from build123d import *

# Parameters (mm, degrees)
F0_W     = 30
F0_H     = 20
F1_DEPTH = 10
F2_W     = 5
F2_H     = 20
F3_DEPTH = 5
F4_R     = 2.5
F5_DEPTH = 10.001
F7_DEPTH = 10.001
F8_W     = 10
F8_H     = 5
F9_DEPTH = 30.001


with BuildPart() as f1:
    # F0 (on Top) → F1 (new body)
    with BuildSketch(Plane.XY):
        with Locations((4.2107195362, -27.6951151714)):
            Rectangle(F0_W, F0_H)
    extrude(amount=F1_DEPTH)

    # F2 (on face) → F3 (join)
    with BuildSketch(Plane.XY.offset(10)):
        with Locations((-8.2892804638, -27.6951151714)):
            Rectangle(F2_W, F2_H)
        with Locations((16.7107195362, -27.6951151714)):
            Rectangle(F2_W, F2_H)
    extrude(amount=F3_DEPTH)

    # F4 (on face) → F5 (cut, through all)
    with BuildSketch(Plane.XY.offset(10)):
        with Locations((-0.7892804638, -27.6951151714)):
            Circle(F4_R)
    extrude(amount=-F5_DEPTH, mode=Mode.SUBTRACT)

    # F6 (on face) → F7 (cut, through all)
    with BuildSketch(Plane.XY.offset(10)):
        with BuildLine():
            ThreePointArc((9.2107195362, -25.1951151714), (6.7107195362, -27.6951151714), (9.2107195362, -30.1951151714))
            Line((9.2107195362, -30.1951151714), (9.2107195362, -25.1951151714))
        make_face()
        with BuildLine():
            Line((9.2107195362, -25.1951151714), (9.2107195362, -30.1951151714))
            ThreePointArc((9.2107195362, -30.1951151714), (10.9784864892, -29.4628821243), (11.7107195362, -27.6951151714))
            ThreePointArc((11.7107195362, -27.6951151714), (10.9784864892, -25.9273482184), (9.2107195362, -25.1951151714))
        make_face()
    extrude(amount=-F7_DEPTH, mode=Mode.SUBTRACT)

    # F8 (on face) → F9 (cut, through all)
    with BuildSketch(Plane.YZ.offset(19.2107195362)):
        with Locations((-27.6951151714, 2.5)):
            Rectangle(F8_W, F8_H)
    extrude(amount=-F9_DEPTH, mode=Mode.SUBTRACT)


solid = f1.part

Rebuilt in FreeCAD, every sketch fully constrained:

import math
import FreeCAD as App
import Part
import Sketcher

V = App.Vector

doc = App.newDocument("Part")
body = doc.addObject("PartDesign::Body", "Body")

# Sketch on XY plane
sketch1 = body.newObject("Sketcher::SketchObject", "Sketch")
sketch1.AttachmentSupport = (doc.getObject("XY_Plane"), [""])
sketch1.MapMode = "FlatFace"
sketch1.addGeometry(Part.LineSegment(V(-11, -18, 0), V(-11, -38, 0)), False)
sketch1.addGeometry(Part.LineSegment(V(-11, -38, 0), V(19, -38, 0)), False)
sketch1.addGeometry(Part.LineSegment(V(19, -38, 0), V(19, -18, 0)), False)
sketch1.addGeometry(Part.LineSegment(V(19, -18, 0), V(-11, -18, 0)), False)
sketch1.addConstraint(Sketcher.Constraint("Coincident", 0, 2, 1, 1))
sketch1.addConstraint(Sketcher.Constraint("Coincident", 1, 2, 2, 1))
sketch1.addConstraint(Sketcher.Constraint("Coincident", 2, 2, 3, 1))
sketch1.addConstraint(Sketcher.Constraint("Coincident", 3, 2, 0, 1))
sketch1.addConstraint(Sketcher.Constraint("Vertical", 0))
sketch1.addConstraint(Sketcher.Constraint("Horizontal", 1))
sketch1.addConstraint(Sketcher.Constraint("Vertical", 2))
sketch1.addConstraint(Sketcher.Constraint("Horizontal", 3))
sketch1.addConstraint(Sketcher.Constraint("DistanceX", 1, 1, 1, 2, 30.0))
sketch1.addConstraint(Sketcher.Constraint("DistanceY", 0, 2, 0, 1, 20.0))
sketch1.addConstraint(Sketcher.Constraint("DistanceX", 0, 2, -1, 1, 10.78928))
sketch1.addConstraint(Sketcher.Constraint("DistanceY", 0, 2, -1, 1, 37.695115))
pad1 = body.newObject("PartDesign::Pad", "Pad")
pad1.Profile = sketch1
pad1.Length = 10

# Sketch on XY plane
sketch2 = body.newObject("Sketcher::SketchObject", "Sketch001")
sketch2.AttachmentSupport = (doc.getObject("XY_Plane"), [""])
sketch2.MapMode = "FlatFace"
sketch2.AttachmentOffset = App.Placement(V(0, 0, 10), App.Rotation())
sketch2.addGeometry(Part.LineSegment(V(-11, -18, 0), V(-11, -38, 0)), False)
sketch2.addGeometry(Part.LineSegment(V(-11, -38, 0), V(-6, -38, 0)), False)
sketch2.addGeometry(Part.LineSegment(V(-6, -38, 0), V(-6, -18, 0)), False)
sketch2.addGeometry(Part.LineSegment(V(-6, -18, 0), V(-11, -18, 0)), False)
sketch2.addGeometry(Part.LineSegment(V(14, -18, 0), V(14, -38, 0)), False)
sketch2.addGeometry(Part.LineSegment(V(14, -38, 0), V(19, -38, 0)), False)
sketch2.addGeometry(Part.LineSegment(V(19, -38, 0), V(19, -18, 0)), False)
sketch2.addGeometry(Part.LineSegment(V(19, -18, 0), V(14, -18, 0)), False)
sketch2.addConstraint(Sketcher.Constraint("Coincident", 0, 2, 1, 1))
sketch2.addConstraint(Sketcher.Constraint("Coincident", 1, 2, 2, 1))
sketch2.addConstraint(Sketcher.Constraint("Coincident", 2, 2, 3, 1))
sketch2.addConstraint(Sketcher.Constraint("Coincident", 3, 2, 0, 1))
sketch2.addConstraint(Sketcher.Constraint("Coincident", 4, 2, 5, 1))
sketch2.addConstraint(Sketcher.Constraint("Coincident", 5, 2, 6, 1))
sketch2.addConstraint(Sketcher.Constraint("Coincident", 6, 2, 7, 1))
sketch2.addConstraint(Sketcher.Constraint("Coincident", 7, 2, 4, 1))
sketch2.addConstraint(Sketcher.Constraint("Vertical", 0))
sketch2.addConstraint(Sketcher.Constraint("Horizontal", 1))
sketch2.addConstraint(Sketcher.Constraint("Vertical", 2))
sketch2.addConstraint(Sketcher.Constraint("Horizontal", 3))
sketch2.addConstraint(Sketcher.Constraint("Vertical", 4))
sketch2.addConstraint(Sketcher.Constraint("Horizontal", 5))
sketch2.addConstraint(Sketcher.Constraint("Vertical", 6))
sketch2.addConstraint(Sketcher.Constraint("Horizontal", 7))
sketch2.addConstraint(Sketcher.Constraint("Horizontal", 1, 2, 4, 2))
sketch2.addConstraint(Sketcher.Constraint("Horizontal", 3, 2, 6, 2))
sketch2.addConstraint(Sketcher.Constraint("Equal", 3, 5))
sketch2.addConstraint(Sketcher.Constraint("DistanceX", 1, 1, 1, 2, 5.0))
sketch2.addConstraint(Sketcher.Constraint("DistanceY", 0, 2, 0, 1, 20.0))
sketch2.addConstraint(Sketcher.Constraint("DistanceX", 1, 2, 4, 2, 20.0))
sketch2.addConstraint(Sketcher.Constraint("DistanceX", 0, 2, -1, 1, 10.78928))
sketch2.addConstraint(Sketcher.Constraint("DistanceY", 0, 2, -1, 1, 37.695115))
pad2 = body.newObject("PartDesign::Pad", "Pad001")
pad2.Profile = sketch2
pad2.Length = 5

# Sketch on XY plane
sketch3 = body.newObject("Sketcher::SketchObject", "Sketch002")
sketch3.AttachmentSupport = (doc.getObject("XY_Plane"), [""])
sketch3.MapMode = "FlatFace"
sketch3.AttachmentOffset = App.Placement(V(0, 0, 10), App.Rotation())
sketch3.addGeometry(Part.Circle(V(-0.8, -27.7, 0), V(0, 0, 1), 2.5), False)
sketch3.addConstraint(Sketcher.Constraint("Diameter", 0, 5.0))
sketch3.addConstraint(Sketcher.Constraint("DistanceX", 0, 3, -1, 1, 0.78928))
sketch3.addConstraint(Sketcher.Constraint("DistanceY", 0, 3, -1, 1, 27.695115))
pocket1 = body.newObject("PartDesign::Pocket", "Pocket")
pocket1.Profile = sketch3
pocket1.Type = "ThroughAll"

# Sketch on XY plane
sketch4 = body.newObject("Sketcher::SketchObject", "Sketch003")
sketch4.AttachmentSupport = (doc.getObject("XY_Plane"), [""])
sketch4.MapMode = "FlatFace"
sketch4.AttachmentOffset = App.Placement(V(0, 0, 10), App.Rotation())
sketch4.addGeometry(Part.ArcOfCircle(Part.Circle(V(9.2, -27.7, 0), V(0, 0, 1), 2.5), math.radians(90), math.radians(270)), False)
sketch4.addGeometry(Part.ArcOfCircle(Part.Circle(V(9.2, -27.7, 0), V(0, 0, 1), 2.5), math.radians(-90), math.radians(0)), False)
sketch4.addGeometry(Part.ArcOfCircle(Part.Circle(V(9.2, -27.7, 0), V(0, 0, 1), 2.5), math.radians(0), math.radians(90)), False)
sketch4.addConstraint(Sketcher.Constraint("Tangent", 0, 2, 1, 1))
sketch4.addConstraint(Sketcher.Constraint("Tangent", 1, 2, 2, 1))
sketch4.addConstraint(Sketcher.Constraint("Tangent", 2, 2, 0, 1))
sketch4.addConstraint(Sketcher.Constraint("Horizontal", 2, 3, 1, 2))
sketch4.addConstraint(Sketcher.Constraint("Vertical", 2, 3, 0, 2))
sketch4.addConstraint(Sketcher.Constraint("Vertical", 0, 2, 2, 2))
sketch4.addConstraint(Sketcher.Constraint("Radius", 0, 2.5))
sketch4.addConstraint(Sketcher.Constraint("DistanceX", -1, 1, 0, 3, 9.21072))
sketch4.addConstraint(Sketcher.Constraint("DistanceY", 0, 3, -1, 1, 27.695115))
pocket2 = body.newObject("PartDesign::Pocket", "Pocket001")
pocket2.Profile = sketch4
pocket2.Type = "ThroughAll"

# Sketch on YZ plane
sketch5 = body.newObject("Sketcher::SketchObject", "Sketch004")
sketch5.AttachmentSupport = (doc.getObject("YZ_Plane"), [""])
sketch5.MapMode = "FlatFace"
sketch5.AttachmentOffset = App.Placement(V(0, 0, 19.21072), App.Rotation())
sketch5.addGeometry(Part.LineSegment(V(-33, 5, 0), V(-33, 0, 0)), False)
sketch5.addGeometry(Part.LineSegment(V(-33, 0, 0), V(-23, 0, 0)), False)
sketch5.addGeometry(Part.LineSegment(V(-23, 0, 0), V(-23, 5, 0)), False)
sketch5.addGeometry(Part.LineSegment(V(-23, 5, 0), V(-33, 5, 0)), False)
sketch5.addConstraint(Sketcher.Constraint("Coincident", 0, 2, 1, 1))
sketch5.addConstraint(Sketcher.Constraint("Coincident", 1, 2, 2, 1))
sketch5.addConstraint(Sketcher.Constraint("Coincident", 2, 2, 3, 1))
sketch5.addConstraint(Sketcher.Constraint("Coincident", 3, 2, 0, 1))
sketch5.addConstraint(Sketcher.Constraint("Vertical", 0))
sketch5.addConstraint(Sketcher.Constraint("Horizontal", 1))
sketch5.addConstraint(Sketcher.Constraint("Vertical", 2))
sketch5.addConstraint(Sketcher.Constraint("Horizontal", 3))
sketch5.addConstraint(Sketcher.Constraint("PointOnObject", 0, 2, -1))
sketch5.addConstraint(Sketcher.Constraint("DistanceX", 1, 1, 1, 2, 10.0))
sketch5.addConstraint(Sketcher.Constraint("DistanceY", 0, 2, 0, 1, 5.0))
sketch5.addConstraint(Sketcher.Constraint("DistanceX", 0, 2, -1, 1, 32.695115))
pocket3 = body.newObject("PartDesign::Pocket", "Pocket002")
pocket3.Profile = sketch5
pocket3.Type = "ThroughAll"

doc.recompute()
